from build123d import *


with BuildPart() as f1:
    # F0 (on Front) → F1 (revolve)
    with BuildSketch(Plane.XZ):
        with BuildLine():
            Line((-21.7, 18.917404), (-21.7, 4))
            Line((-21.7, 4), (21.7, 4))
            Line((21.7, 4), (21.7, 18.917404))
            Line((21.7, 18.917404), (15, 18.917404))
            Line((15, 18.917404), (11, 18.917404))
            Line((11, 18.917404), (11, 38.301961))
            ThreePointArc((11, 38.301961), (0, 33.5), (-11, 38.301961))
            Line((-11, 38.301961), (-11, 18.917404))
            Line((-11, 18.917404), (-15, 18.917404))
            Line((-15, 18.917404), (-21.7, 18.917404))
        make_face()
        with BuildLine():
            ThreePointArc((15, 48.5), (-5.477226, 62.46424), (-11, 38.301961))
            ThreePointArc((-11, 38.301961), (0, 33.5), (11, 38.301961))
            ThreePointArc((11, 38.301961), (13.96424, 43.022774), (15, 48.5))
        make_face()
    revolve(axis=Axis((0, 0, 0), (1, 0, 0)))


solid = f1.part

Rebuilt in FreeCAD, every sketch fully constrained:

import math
import FreeCAD as App
import Part
import Sketcher
Q = App.Units.Quantity

doc = App.newDocument("Part")
params = doc.addObject("Spreadsheet::Sheet", "Params")
for row, (alias, value) in enumerate([
    ("sketch1_radius", "14.999998 mm"),
    ("sketch1_width", "43.4 mm"),
    ("sketch1_width2", "10.7 mm"),
    ("revolution_angle", "360 deg"),
], start=1):
    params.set(f"A{row}", alias)
    params.set(f"B{row}", "=" + value)
    params.setAlias(f"B{row}", alias)

body = doc.addObject("PartDesign::Body", "Body")

# Sketch on XZ plane
sketch1 = body.newObject("Sketcher::SketchObject", "Sketch")
sketch1.AttachmentSupport = (doc.getObject("XZ_Plane"), [""])
sketch1.MapMode = "FlatFace"
sketch1.addGeometry([
    Part.LineSegment(App.Vector(-22, 19, 0), App.Vector(-22, 4, 0)),  # 0
    Part.LineSegment(App.Vector(-22, 4, 0), App.Vector(22, 4, 0)),  # 1
    Part.LineSegment(App.Vector(22, 4, 0), App.Vector(22, 19, 0)),  # 2
    Part.LineSegment(App.Vector(22, 19, 0), App.Vector(11, 19, 0)),  # 3
    Part.LineSegment(App.Vector(11, 19, 0), App.Vector(11, 38, 0)),  # 4
    Part.ArcOfCircle(Part.Circle(App.Vector(0, 48, 0), App.Vector(0, 0, 1), 15), math.radians(-43), math.radians(0)),  # 5
    Part.ArcOfCircle(Part.Circle(App.Vector(0, 49, 0), App.Vector(0, 0, 1), 15), math.radians(0), math.radians(223)),  # 6
    Part.LineSegment(App.Vector(-11, 38, 0), App.Vector(-11, 19, 0)),  # 7
    Part.LineSegment(App.Vector(-11, 19, 0), App.Vector(-22, 19, 0)),  # 8
], False)
sketch1.addConstraint([
    Sketcher.Constraint("Coincident", 0, 2, 1, 1),
    Sketcher.Constraint("Coincident", 1, 2, 2, 1),
    Sketcher.Constraint("Coincident", 2, 2, 3, 1),
    Sketcher.Constraint("Coincident", 3, 2, 4, 1),
    Sketcher.Constraint("Coincident", 4, 2, 5, 1),
    Sketcher.Constraint("Tangent", 5, 2, 6, 1),
    Sketcher.Constraint("Coincident", 6, 2, 7, 1),
    Sketcher.Constraint("Coincident", 7, 2, 8, 1),
    Sketcher.Constraint("Coincident", 8, 2, 0, 1),
    Sketcher.Constraint("Vertical", 0),
    Sketcher.Constraint("Horizontal", 1),
    Sketcher.Constraint("Vertical", 2),
    Sketcher.Constraint("Horizontal", 3),
    Sketcher.Constraint("Vertical", 4),
    Sketcher.Constraint("Vertical", 7),
    Sketcher.Constraint("Horizontal", 8),
    Sketcher.Constraint("Equal", 5, 6),
    Sketcher.Constraint("Symmetric", 4, 2, 6, 2, -2),
    Sketcher.Constraint("Symmetric", 2, 2, 8, 2, -2),
    Sketcher.Constraint("Horizontal", 6, 3, 5, 2),
    Sketcher.Constraint("Radius", 5, Q("14.999998 mm")),
    Sketcher.Constraint("DistanceX", 1, 1, 1, 2, Q("43.4 mm")),
    Sketcher.Constraint("DistanceX", 3, 2, 3, 1, Q("10.7 mm")),
    Sketcher.Constraint("DistanceY", -1, 1, 0, 2, Q("4 mm")),
    Sketcher.Constraint("DistanceY", -1, 1, 5, 3, Q("48.499999 mm")),
    Sketcher.Constraint("DistanceY", 0, 2, 0, 1, Q("14.917404 mm")),
])
sketch1.setExpression("Constraints[20]", "Params.sketch1_radius")
sketch1.setExpression("Constraints[21]", "Params.sketch1_width")
sketch1.setExpression("Constraints[22]", "Params.sketch1_width2")
revolution = body.newObject("PartDesign::Revolution", "Revolution")
revolution.Profile = sketch1
revolution.ReferenceAxis = (sketch1, ["H_Axis"])
revolution.setExpression("Angle", "Params.revolution_angle")

doc.recompute()
